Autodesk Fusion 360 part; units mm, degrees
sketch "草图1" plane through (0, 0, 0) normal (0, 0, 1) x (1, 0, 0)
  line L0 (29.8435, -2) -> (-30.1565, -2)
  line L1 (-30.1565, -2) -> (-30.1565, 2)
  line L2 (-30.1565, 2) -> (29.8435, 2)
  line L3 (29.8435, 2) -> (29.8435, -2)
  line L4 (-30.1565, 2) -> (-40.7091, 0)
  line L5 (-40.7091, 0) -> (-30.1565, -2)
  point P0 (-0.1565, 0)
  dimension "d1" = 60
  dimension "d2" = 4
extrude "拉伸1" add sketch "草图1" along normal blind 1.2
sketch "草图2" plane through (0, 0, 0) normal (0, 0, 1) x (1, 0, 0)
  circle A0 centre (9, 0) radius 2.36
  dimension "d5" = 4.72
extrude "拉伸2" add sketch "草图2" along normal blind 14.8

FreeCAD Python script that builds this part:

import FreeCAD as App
import Part
import Sketcher
from FreeCAD import Vector

doc = App.newDocument("Part")
body = doc.addObject("PartDesign::Body", "Body")

sketch1 = doc.addObject("Sketcher::SketchObject", "Sketch")
body.addObject(sketch1)
sketch1.AttachmentSupport = (doc.XY_Plane, [""])
sketch1.MapMode = "FlatFace"
sketch1.addGeometry([
    Part.LineSegment(Vector(-30.2, -2, 0), Vector(29.8, -2, 0)),
    Part.LineSegment(Vector(29.8, -2, 0), Vector(29.8, 2, 0)),
    Part.LineSegment(Vector(29.8, 2, 0), Vector(-30.2, 2, 0)),
    Part.LineSegment(Vector(-30.2, 2, 0), Vector(-40.7, 0, 0)),
    Part.LineSegment(Vector(-40.7, 0, 0), Vector(-30.2, -2, 0)),
], False)
sketch1.addConstraint([
    Sketcher.Constraint("Coincident", 0, 2, 1, 1),
    Sketcher.Constraint("Coincident", 1, 2, 2, 1),
    Sketcher.Constraint("Coincident", 2, 2, 3, 1),
    Sketcher.Constraint("Coincident", 3, 2, 4, 1),
    Sketcher.Constraint("Coincident", 4, 2, 0, 1),
    Sketcher.Constraint("Horizontal", 0),
    Sketcher.Constraint("Vertical", 1),
    Sketcher.Constraint("Horizontal", 2),
    Sketcher.Constraint("Symmetric", 2, 2, 4, 2, -1),
    Sketcher.Constraint("PointOnObject", 3, 2, -1),
    Sketcher.Constraint("DistanceX", 0, 1, 0, 2, 60.0),
    Sketcher.Constraint("DistanceY", 1, 1, 1, 2, 4.0),
    Sketcher.Constraint("DistanceX", 3, 2, -1, 1, 40.709),
    Sketcher.Constraint("Distance", 3, 10.7405),
])
pad1 = doc.addObject("PartDesign::Pad", "Pad")
body.addObject(pad1)
pad1.Profile = sketch1
pad1.Length = 1.2

sketch2 = doc.addObject("Sketcher::SketchObject", "Sketch001")
body.addObject(sketch2)
sketch2.AttachmentSupport = (doc.XY_Plane, [""])
sketch2.MapMode = "FlatFace"
sketch2.addGeometry(Part.Circle(Vector(9, 0, 0), Vector(0, 0, 1), 2.4), False)
sketch2.addConstraint([
    Sketcher.Constraint("PointOnObject", 0, 3, -1),
    Sketcher.Constraint("Diameter", 0, 4.72),
    Sketcher.Constraint("DistanceX", -1, 1, 0, 3, 9.0),
])
pad2 = doc.addObject("PartDesign::Pad", "Pad001")
body.addObject(pad2)
pad2.Profile = sketch2
pad2.Length = 14.8

doc.recompute()
